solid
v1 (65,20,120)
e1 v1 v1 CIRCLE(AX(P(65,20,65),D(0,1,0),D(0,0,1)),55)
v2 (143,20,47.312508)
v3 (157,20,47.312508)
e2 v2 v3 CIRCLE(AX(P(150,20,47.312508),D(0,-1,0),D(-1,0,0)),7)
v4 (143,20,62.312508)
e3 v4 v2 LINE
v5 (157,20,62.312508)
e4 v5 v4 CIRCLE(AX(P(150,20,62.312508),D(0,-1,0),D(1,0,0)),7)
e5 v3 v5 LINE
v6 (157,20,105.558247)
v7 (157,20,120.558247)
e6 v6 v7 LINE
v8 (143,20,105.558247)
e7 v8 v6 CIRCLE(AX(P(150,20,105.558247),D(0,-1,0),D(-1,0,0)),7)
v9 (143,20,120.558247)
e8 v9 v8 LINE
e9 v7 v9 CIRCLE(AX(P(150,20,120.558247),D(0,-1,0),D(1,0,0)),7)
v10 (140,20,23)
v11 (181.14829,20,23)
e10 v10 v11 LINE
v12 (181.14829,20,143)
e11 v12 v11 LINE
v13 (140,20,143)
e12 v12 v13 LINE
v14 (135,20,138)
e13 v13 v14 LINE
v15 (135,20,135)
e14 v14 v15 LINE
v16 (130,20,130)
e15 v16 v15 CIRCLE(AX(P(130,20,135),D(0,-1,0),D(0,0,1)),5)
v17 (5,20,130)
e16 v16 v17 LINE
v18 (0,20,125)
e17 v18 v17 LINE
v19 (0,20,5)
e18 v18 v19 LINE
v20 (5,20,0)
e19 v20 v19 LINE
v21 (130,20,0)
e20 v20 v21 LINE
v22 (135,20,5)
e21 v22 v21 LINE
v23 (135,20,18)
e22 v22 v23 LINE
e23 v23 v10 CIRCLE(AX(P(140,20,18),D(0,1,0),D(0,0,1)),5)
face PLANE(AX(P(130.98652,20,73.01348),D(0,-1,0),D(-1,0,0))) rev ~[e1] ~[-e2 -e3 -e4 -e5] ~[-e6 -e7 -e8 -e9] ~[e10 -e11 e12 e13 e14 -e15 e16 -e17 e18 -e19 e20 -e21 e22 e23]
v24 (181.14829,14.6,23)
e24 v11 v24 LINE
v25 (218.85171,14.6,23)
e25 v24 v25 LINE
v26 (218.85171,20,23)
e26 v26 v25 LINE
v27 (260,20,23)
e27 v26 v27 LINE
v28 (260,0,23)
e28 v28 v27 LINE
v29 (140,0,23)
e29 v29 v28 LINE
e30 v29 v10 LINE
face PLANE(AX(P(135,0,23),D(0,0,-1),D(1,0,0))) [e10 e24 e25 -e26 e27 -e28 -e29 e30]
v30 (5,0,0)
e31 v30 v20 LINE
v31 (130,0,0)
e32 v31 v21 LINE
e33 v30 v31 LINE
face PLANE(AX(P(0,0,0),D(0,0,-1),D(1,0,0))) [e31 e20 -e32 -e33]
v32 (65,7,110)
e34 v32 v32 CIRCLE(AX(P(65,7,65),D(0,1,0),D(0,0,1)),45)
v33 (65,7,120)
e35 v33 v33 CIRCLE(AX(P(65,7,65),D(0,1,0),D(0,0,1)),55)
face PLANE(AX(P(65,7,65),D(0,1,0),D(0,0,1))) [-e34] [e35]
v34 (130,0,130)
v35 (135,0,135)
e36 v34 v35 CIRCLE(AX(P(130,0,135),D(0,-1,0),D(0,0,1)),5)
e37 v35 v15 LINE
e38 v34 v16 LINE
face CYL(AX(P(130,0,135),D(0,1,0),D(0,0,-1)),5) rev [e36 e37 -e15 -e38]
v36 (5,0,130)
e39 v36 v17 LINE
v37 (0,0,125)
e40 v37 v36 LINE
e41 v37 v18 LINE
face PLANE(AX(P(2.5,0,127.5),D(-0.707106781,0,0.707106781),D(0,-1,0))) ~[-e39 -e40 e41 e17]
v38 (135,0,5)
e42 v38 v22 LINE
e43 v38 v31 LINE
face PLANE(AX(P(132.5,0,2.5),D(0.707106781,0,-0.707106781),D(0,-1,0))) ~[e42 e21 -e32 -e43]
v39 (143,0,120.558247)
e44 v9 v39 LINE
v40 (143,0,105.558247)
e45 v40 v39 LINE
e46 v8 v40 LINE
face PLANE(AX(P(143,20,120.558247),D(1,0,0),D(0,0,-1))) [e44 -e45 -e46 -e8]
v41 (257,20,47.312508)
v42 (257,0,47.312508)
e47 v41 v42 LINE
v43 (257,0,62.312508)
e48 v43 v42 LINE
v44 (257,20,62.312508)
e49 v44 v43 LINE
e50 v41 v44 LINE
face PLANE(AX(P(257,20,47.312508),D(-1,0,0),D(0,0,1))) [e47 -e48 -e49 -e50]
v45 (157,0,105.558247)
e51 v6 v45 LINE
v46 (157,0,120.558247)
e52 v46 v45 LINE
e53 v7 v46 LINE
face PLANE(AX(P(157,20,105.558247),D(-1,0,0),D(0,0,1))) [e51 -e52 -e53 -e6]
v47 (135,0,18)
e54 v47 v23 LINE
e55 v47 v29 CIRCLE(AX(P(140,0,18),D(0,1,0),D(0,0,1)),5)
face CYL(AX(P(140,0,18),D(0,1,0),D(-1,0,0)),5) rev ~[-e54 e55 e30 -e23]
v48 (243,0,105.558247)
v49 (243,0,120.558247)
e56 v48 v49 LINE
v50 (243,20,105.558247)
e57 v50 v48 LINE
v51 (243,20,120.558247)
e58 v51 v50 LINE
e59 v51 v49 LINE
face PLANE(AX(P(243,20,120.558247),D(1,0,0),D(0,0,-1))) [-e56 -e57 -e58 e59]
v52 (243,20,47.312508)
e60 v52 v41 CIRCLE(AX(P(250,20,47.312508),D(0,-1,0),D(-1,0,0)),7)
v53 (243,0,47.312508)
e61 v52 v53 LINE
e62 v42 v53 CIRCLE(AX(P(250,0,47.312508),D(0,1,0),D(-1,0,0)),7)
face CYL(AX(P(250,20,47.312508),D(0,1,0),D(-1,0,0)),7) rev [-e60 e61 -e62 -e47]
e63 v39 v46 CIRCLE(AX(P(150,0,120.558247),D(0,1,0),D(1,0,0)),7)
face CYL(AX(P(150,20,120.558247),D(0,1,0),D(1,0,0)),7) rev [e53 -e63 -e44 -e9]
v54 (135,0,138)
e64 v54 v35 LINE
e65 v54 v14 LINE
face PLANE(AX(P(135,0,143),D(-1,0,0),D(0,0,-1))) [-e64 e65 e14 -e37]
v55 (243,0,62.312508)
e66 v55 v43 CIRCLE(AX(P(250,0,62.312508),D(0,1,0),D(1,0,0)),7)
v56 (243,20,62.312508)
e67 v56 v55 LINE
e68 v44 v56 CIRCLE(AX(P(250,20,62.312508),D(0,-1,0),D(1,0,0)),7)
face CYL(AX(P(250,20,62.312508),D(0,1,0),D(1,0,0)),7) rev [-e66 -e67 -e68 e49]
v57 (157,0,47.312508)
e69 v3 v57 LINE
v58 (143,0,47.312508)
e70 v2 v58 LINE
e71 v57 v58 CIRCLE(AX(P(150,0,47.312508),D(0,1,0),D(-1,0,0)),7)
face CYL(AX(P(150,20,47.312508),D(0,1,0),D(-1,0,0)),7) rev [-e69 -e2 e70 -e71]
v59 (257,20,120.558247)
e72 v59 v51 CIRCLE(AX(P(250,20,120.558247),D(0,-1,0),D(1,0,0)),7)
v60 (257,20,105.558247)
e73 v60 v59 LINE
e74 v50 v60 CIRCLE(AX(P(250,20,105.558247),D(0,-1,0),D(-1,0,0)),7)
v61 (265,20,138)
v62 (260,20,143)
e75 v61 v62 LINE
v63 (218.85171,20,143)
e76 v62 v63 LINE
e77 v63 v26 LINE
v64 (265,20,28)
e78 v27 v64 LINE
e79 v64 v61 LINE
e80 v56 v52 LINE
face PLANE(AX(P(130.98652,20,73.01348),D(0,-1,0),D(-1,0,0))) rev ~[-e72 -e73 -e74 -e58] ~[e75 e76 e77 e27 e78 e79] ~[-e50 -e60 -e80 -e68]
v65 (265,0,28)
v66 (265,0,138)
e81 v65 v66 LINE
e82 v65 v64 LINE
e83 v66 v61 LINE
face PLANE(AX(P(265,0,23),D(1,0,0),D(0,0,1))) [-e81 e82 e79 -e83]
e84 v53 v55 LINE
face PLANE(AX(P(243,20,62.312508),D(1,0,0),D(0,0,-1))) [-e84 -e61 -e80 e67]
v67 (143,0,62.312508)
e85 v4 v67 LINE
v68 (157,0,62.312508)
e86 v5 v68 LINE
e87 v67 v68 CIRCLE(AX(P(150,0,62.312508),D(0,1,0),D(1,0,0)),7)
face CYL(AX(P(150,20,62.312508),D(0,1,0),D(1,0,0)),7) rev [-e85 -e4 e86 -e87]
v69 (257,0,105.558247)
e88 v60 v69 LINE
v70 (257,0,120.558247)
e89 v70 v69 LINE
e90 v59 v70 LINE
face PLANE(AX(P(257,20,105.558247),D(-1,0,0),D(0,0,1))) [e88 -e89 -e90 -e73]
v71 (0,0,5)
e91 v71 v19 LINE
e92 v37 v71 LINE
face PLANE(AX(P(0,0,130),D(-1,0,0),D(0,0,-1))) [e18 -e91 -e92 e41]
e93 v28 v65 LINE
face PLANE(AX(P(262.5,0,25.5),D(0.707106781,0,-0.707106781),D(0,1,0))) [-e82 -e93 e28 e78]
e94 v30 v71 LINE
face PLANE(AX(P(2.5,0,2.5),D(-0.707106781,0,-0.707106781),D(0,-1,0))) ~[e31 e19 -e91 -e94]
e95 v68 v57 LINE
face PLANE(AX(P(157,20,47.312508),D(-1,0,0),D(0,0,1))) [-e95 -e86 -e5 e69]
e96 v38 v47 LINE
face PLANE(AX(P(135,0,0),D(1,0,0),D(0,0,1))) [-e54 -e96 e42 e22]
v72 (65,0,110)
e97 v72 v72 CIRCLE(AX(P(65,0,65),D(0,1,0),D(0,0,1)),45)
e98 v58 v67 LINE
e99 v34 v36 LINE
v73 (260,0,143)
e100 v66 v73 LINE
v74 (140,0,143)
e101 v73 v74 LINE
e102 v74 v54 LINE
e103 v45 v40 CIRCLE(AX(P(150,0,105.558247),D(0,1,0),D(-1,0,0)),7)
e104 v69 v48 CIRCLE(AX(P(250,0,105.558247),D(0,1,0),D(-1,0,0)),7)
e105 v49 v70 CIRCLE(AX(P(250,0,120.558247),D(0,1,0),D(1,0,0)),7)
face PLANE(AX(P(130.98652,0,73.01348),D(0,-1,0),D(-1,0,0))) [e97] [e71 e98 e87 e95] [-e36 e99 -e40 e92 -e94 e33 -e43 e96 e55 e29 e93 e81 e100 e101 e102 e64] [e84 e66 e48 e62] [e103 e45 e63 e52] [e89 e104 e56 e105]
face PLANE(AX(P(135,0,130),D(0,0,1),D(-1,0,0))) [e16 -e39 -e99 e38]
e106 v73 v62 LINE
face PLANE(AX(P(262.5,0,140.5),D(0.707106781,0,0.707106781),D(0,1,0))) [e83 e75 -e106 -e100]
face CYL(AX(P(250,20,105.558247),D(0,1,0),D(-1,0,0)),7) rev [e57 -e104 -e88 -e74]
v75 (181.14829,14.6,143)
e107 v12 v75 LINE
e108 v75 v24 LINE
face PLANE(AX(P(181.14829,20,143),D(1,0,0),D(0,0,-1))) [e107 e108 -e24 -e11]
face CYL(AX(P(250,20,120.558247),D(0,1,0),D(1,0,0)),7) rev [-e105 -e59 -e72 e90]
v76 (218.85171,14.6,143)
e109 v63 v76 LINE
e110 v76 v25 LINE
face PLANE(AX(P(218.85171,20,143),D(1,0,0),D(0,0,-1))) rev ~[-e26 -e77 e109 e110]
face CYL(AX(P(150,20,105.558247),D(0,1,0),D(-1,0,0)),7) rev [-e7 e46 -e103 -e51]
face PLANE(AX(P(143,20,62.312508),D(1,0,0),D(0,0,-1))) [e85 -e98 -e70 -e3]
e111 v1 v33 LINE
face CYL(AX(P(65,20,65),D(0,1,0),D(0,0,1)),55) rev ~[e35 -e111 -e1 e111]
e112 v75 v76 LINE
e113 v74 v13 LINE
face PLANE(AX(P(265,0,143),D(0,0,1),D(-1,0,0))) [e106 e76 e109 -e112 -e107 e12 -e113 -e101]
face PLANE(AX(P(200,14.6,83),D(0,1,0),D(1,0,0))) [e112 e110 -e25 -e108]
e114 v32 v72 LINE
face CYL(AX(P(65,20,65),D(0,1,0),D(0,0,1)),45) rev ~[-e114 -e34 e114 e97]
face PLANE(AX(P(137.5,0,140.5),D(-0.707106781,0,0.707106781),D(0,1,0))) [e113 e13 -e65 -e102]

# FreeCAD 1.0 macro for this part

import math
import FreeCAD as App
import Part
import Sketcher
from FreeCAD import Vector
Q = App.Units.Quantity


def edges_at(feature, points):
    """Names of the edges that pass closest to the given points."""
    edges = feature.Shape.Edges
    near = lambda p: min(range(len(edges)), key=lambda i: edges[i].distToShape(Part.Vertex(*p))[0])
    return sorted({f"Edge{near(p) + 1}" for p in points})

doc = App.newDocument("Part")
body = doc.addObject("PartDesign::Body", "Body")

# Sketch on XZ plane
sketch1 = body.newObject("Sketcher::SketchObject", "Sketch")
sketch1.AttachmentSupport = (doc.getObject("XZ_Plane"), [""])
sketch1.MapMode = "FlatFace"
sketch1.addGeometry([
    Part.LineSegment(Vector(135, 0, 0), Vector(0, 0, 0)),  # 0
    Part.LineSegment(Vector(0, 0, 0), Vector(0, 130, 0)),  # 1
    Part.LineSegment(Vector(0, 130, 0), Vector(135, 130, 0)),  # 2
    Part.LineSegment(Vector(135, 130, 0), Vector(135, 143, 0)),  # 3
    Part.LineSegment(Vector(135, 143, 0), Vector(265, 143, 0)),  # 4
    Part.LineSegment(Vector(265, 143, 0), Vector(265, 23, 0)),  # 5
    Part.LineSegment(Vector(265, 23, 0), Vector(135, 23, 0)),  # 6
    Part.LineSegment(Vector(135, 23, 0), Vector(135, 0, 0)),  # 7
], False)
sketch1.addConstraint([
    Sketcher.Constraint("Coincident", 0, 2, 1, 1),
    Sketcher.Constraint("Coincident", 1, 2, 2, 1),
    Sketcher.Constraint("Coincident", 2, 2, 3, 1),
    Sketcher.Constraint("Coincident", 3, 2, 4, 1),
    Sketcher.Constraint("Coincident", 4, 2, 5, 1),
    Sketcher.Constraint("Coincident", 5, 2, 6, 1),
    Sketcher.Constraint("Coincident", 6, 2, 7, 1),
    Sketcher.Constraint("Coincident", 7, 2, 0, 1),
    Sketcher.Constraint("Horizontal", 0),
    Sketcher.Constraint("Vertical", 1),
    Sketcher.Constraint("Horizontal", 2),
    Sketcher.Constraint("Vertical", 3),
    Sketcher.Constraint("Horizontal", 4),
    Sketcher.Constraint("Vertical", 5),
    Sketcher.Constraint("Horizontal", 6),
    Sketcher.Constraint("Vertical", 7),
    Sketcher.Constraint("Coincident", 0, 2, -1, 1),
    Sketcher.Constraint("Vertical", 3, 2, 6, 2),
    Sketcher.Constraint("Equal", 6, 1),
    Sketcher.Constraint("DistanceX", 0, 2, 0, 1, Q("135 mm")),
    Sketcher.Constraint("DistanceX", 4, 1, 4, 2, Q("130 mm")),
    Sketcher.Constraint("DistanceY", 3, 1, 3, 2, Q("13 mm")),
    Sketcher.Constraint("DistanceY", 5, 2, 5, 1, Q("120 mm")),
])
pad1 = body.newObject("PartDesign::Pad", "Pad")
pad1.Profile = sketch1
pad1.Length = 20
pad1.Reversed = True

# Sketch on XZ plane
sketch2 = body.newObject("Sketcher::SketchObject", "Sketch001")
sketch2.AttachmentSupport = (doc.getObject("XZ_Plane"), [""])
sketch2.MapMode = "FlatFace"
sketch2.AttachmentOffset = App.Placement(Vector(0, 0, -20), App.Rotation())
sketch2.addGeometry(Part.Circle(Vector(65, 65, 0), Vector(0, 0, 1), 45), False)
sketch2.addConstraint([
    Sketcher.Constraint("Diameter", 0, Q("90 mm")),
    Sketcher.Constraint("DistanceX", -1, 1, 0, 3, Q("65 mm")),
    Sketcher.Constraint("DistanceY", -1, 1, 0, 3, Q("65 mm")),
])
pocket1 = body.newObject("PartDesign::Pocket", "Pocket")
pocket1.Profile = sketch2
pocket1.Type = "ThroughAll"
pocket1.Reversed = True

# Sketch on XZ plane
sketch3 = body.newObject("Sketcher::SketchObject", "Sketch002")
sketch3.AttachmentSupport = (doc.getObject("XZ_Plane"), [""])
sketch3.MapMode = "FlatFace"
sketch3.AttachmentOffset = App.Placement(Vector(0, 0, -20), App.Rotation())
sketch3.addGeometry(Part.Circle(Vector(65, 65, 0), Vector(0, 0, 1), 55), False)
sketch3.addConstraint([
    Sketcher.Constraint("Diameter", 0, Q("110 mm")),
    Sketcher.Constraint("DistanceX", -1, 1, 0, 3, Q("65 mm")),
    Sketcher.Constraint("DistanceY", -1, 1, 0, 3, Q("65 mm")),
])
pocket2 = body.newObject("PartDesign::Pocket", "Pocket001")
pocket2.Profile = sketch3
pocket2.Length = 13
pocket2.Reversed = True

# Sketch on XZ plane
sketch4 = body.newObject("Sketcher::SketchObject", "Sketch003")
sketch4.AttachmentSupport = (doc.getObject("XZ_Plane"), [""])
sketch4.MapMode = "FlatFace"
sketch4.AttachmentOffset = App.Placement(Vector(0, 0, -20), App.Rotation())
sketch4.addGeometry([
    Part.LineSegment(Vector(181.14829, 23, 0), Vector(181.14829, 143, 0)),
    Part.LineSegment(Vector(181.14829, 143, 0), Vector(218.85171, 143, 0)),
    Part.LineSegment(Vector(218.85171, 143, 0), Vector(218.85171, 23, 0)),
    Part.LineSegment(Vector(218.85171, 23, 0), Vector(181.14829, 23, 0)),
], False)
sketch4.addConstraint([
    Sketcher.Constraint("Coincident", 0, 2, 1, 1),
    Sketcher.Constraint("Coincident", 1, 2, 2, 1),
    Sketcher.Constraint("Coincident", 2, 2, 3, 1),
    Sketcher.Constraint("Coincident", 3, 2, 0, 1),
    Sketcher.Constraint("Vertical", 0),
    Sketcher.Constraint("Horizontal", 1),
    Sketcher.Constraint("Vertical", 2),
    Sketcher.Constraint("Horizontal", 3),
    Sketcher.Constraint("DistanceY", 0, 1, 0, 2, Q("120 mm")),
    Sketcher.Constraint("DistanceY", -1, 1, 0, 2, Q("143 mm")),
    Sketcher.Constraint("DistanceX", 1, 1, 1, 2, Q("37.703421 mm")),
    Sketcher.Constraint("DistanceX", -1, 1, 0, 2, Q("181.14829 mm")),
])
pocket3 = body.newObject("PartDesign::Pocket", "Pocket002")
pocket3.Profile = sketch4
pocket3.Length = 5.4
pocket3.Reversed = True

# Sketch on XZ plane
sketch5 = body.newObject("Sketcher::SketchObject", "Sketch004")
sketch5.AttachmentSupport = (doc.getObject("XZ_Plane"), [""])
sketch5.MapMode = "FlatFace"
sketch5.AttachmentOffset = App.Placement(Vector(0, 0, -20), App.Rotation())
sketch5.addGeometry([
    Part.LineSegment(Vector(157, 62.312508, 0), Vector(157, 47.312508, 0)),  # 0
    Part.ArcOfCircle(Part.Circle(Vector(150, 47.312508, 0), Vector(0, 0, 1), 7), math.radians(180), math.radians(360)),  # 1
    Part.LineSegment(Vector(143, 47.312508, 0), Vector(143, 62.312508, 0)),  # 2
    Part.ArcOfCircle(Part.Circle(Vector(150, 62.312508, 0), Vector(0, 0, 1), 7), math.radians(0), math.radians(180)),  # 3
    Part.LineSegment(Vector(157, 120.558247, 0), Vector(157, 105.558247, 0)),  # 4
    Part.ArcOfCircle(Part.Circle(Vector(150, 105.558247, 0), Vector(0, 0, 1), 7), math.radians(180), math.radians(360)),  # 5
    Part.LineSegment(Vector(143, 105.558247, 0), Vector(143, 120.558247, 0)),  # 6
    Part.ArcOfCircle(Part.Circle(Vector(150, 120.558247, 0), Vector(0, 0, 1), 7), math.radians(0), math.radians(180)),  # 7
    Part.LineSegment(Vector(257, 62.312508, 0), Vector(257, 47.312508, 0)),  # 8
    Part.ArcOfCircle(Part.Circle(Vector(250, 47.312508, 0), Vector(0, 0, 1), 7), math.radians(180), math.radians(360)),  # 9
    Part.LineSegment(Vector(243, 47.312508, 0), Vector(243, 62.312508, 0)),  # 10
    Part.ArcOfCircle(Part.Circle(Vector(250, 62.312508, 0), Vector(0, 0, 1), 7), math.radians(0), math.radians(180)),  # 11
    Part.LineSegment(Vector(257, 120.558247, 0), Vector(257, 105.558247, 0)),  # 12
    Part.ArcOfCircle(Part.Circle(Vector(250, 105.558247, 0), Vector(0, 0, 1), 7), math.radians(180), math.radians(360)),  # 13
    Part.LineSegment(Vector(243, 105.558247, 0), Vector(243, 120.558247, 0)),  # 14
    Part.ArcOfCircle(Part.Circle(Vector(250, 120.558247, 0), Vector(0, 0, 1), 7), math.radians(0), math.radians(180)),  # 15
], False)
sketch5.addConstraint([
    Sketcher.Constraint("Tangent", 0, 2, 1, 2),
    Sketcher.Constraint("Tangent", 1, 1, 2, 1),
    Sketcher.Constraint("Tangent", 2, 2, 3, 2),
    Sketcher.Constraint("Tangent", 3, 1, 0, 1),
    Sketcher.Constraint("Tangent", 4, 2, 5, 2),
    Sketcher.Constraint("Tangent", 5, 1, 6, 1),
    Sketcher.Constraint("Tangent", 6, 2, 7, 2),
    Sketcher.Constraint("Tangent", 7, 1, 4, 1),
    Sketcher.Constraint("Tangent", 8, 2, 9, 2),
    Sketcher.Constraint("Tangent", 9, 1, 10, 1),
    Sketcher.Constraint("Tangent", 10, 2, 11, 2),
    Sketcher.Constraint("Tangent", 11, 1, 8, 1),
    Sketcher.Constraint("Tangent", 12, 2, 13, 2),
    Sketcher.Constraint("Tangent", 13, 1, 14, 1),
    Sketcher.Constraint("Tangent", 14, 2, 15, 2),
    Sketcher.Constraint("Tangent", 15, 1, 12, 1),
    Sketcher.Constraint("Vertical", 0),
    Sketcher.Constraint("Vertical", 2),
    Sketcher.Constraint("Vertical", 4),
    Sketcher.Constraint("Vertical", 6),
    Sketcher.Constraint("Vertical", 8),
    Sketcher.Constraint("Vertical", 10),
    Sketcher.Constraint("Vertical", 12),
    Sketcher.Constraint("Vertical", 14),
    Sketcher.Constraint("Equal", 3, 5),
    Sketcher.Constraint("Equal", 7, 9),
    Sketcher.Constraint("Equal", 11, 13),
    Sketcher.Constraint("Horizontal", 1, 3, 9, 3),
    Sketcher.Constraint("Horizontal", 3, 3, 11, 3),
    Sketcher.Constraint("Horizontal", 5, 3, 13, 3),
    Sketcher.Constraint("Horizontal", 7, 3, 15, 3),
    Sketcher.Constraint("Vertical", 3, 3, 5, 3),
    Sketcher.Constraint("Vertical", 11, 3, 13, 3),
    Sketcher.Constraint("Equal", 2, 4),
    Sketcher.Constraint("Radius", 1, Q("7 mm")),
    Sketcher.Constraint("DistanceY", 0, 2, 0, 1, Q("15 mm")),
    Sketcher.Constraint("DistanceX", -1, 1, 1, 3, Q("150 mm")),
    Sketcher.Constraint("DistanceX", -1, 1, 9, 3, Q("250 mm")),
    Sketcher.Constraint("DistanceY", 3, 3, 5, 3, Q("43.245739 mm")),
    Sketcher.Constraint("DistanceY", -1, 1, 1, 3, Q("47.312508 mm")),
])
pocket4 = body.newObject("PartDesign::Pocket", "Pocket003")
pocket4.Profile = sketch5
pocket4.Type = "ThroughAll"
pocket4.Reversed = True
doc.recompute()

fillet = body.newObject("PartDesign::Fillet", "Fillet")
fillet.Base = (pocket4, edges_at(pocket4, [(135, 10, 23), (135, 10, 130)]))
fillet.Radius = 5
doc.recompute()

chamfer = body.newObject("PartDesign::Chamfer", "Chamfer")
chamfer.Base = (fillet, edges_at(fillet, [
    (0, 10, 0),
    (135, 10, 0),
    (265, 10, 23),
    (265, 10, 143),
    (135, 10, 143),
    (0, 10, 130),
]))
chamfer.Size = 5

doc.recompute()
